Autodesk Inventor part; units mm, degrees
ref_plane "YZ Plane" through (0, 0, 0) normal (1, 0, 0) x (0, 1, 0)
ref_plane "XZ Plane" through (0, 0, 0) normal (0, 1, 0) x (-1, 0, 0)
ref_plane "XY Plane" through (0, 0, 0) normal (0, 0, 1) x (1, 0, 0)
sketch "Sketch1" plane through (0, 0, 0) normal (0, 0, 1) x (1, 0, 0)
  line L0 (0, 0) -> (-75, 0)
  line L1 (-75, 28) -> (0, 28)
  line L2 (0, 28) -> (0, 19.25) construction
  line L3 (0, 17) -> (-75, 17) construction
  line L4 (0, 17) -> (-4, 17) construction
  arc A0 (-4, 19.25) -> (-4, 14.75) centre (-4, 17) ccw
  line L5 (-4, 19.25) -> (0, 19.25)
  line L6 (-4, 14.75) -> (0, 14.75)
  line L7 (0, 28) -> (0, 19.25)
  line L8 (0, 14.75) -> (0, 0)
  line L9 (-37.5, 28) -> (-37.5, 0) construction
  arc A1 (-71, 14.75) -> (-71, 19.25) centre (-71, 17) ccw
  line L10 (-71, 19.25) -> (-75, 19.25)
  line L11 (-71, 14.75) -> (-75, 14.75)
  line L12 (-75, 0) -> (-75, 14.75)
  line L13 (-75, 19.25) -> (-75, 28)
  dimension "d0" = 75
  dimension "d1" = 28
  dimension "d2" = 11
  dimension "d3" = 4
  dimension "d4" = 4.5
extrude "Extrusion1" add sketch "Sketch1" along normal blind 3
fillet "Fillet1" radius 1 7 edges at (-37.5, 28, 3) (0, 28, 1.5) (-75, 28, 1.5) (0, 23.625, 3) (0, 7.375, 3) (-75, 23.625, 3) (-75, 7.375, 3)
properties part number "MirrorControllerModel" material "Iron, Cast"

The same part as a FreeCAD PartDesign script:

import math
import FreeCAD as App
import Part
import Sketcher

V = App.Vector
Q = App.Units.Quantity


def edges_at(feature, points):
    """Names of the edges that pass closest to the given points."""
    edges = feature.Shape.Edges
    near = lambda p: min(range(len(edges)), key=lambda i: edges[i].distToShape(Part.Vertex(*p))[0])
    return sorted({f"Edge{near(p) + 1}" for p in points})

doc = App.newDocument("Part")
params = doc.addObject("Spreadsheet::Sheet", "Params")
for row, (alias, value) in enumerate([
    ("sketch1_width", "75 mm"),
    ("sketch1_width2", "4 mm"),
    ("sketch1_radius", "2.25 mm"),
    ("pad1_length", "3 mm"),
    ("fillet_radius", "1 mm"),
], start=1):
    params.set(f"A{row}", alias)
    params.set(f"B{row}", "=" + value)
    params.setAlias(f"B{row}", alias)

body = doc.addObject("PartDesign::Body", "Body")

sketch1 = body.newObject("Sketcher::SketchObject", "Sketch")
sketch1.AttachmentSupport = (doc.getObject("XY_Plane"), [""])
sketch1.MapMode = "FlatFace"
sketch1.addGeometry([
    Part.LineSegment(V(-75, 0, 0), V(0, 0, 0)),
    Part.LineSegment(V(0, 0, 0), V(0, 14.8, 0)),
    Part.LineSegment(V(0, 14.8, 0), V(-4, 14.8, 0)),
    Part.ArcOfCircle(Part.Circle(V(-4, 17, 0), V(0, 0, 1), 2.2), math.radians(90), math.radians(270)),
    Part.LineSegment(V(-4, 19.2, 0), V(0, 19.2, 0)),
    Part.LineSegment(V(0, 19.2, 0), V(0, 28, 0)),
    Part.LineSegment(V(0, 28, 0), V(-75, 28, 0)),
    Part.LineSegment(V(-75, 28, 0), V(-75, 19.2, 0)),
    Part.LineSegment(V(-75, 19.2, 0), V(-71, 19.2, 0)),
    Part.ArcOfCircle(Part.Circle(V(-71, 17, 0), V(0, 0, 1), 2.2), math.radians(-90), math.radians(90)),
    Part.LineSegment(V(-71, 14.8, 0), V(-75, 14.8, 0)),
    Part.LineSegment(V(-75, 14.8, 0), V(-75, 0, 0)),
], False)
sketch1.addConstraint([
    Sketcher.Constraint("Coincident", 0, 2, 1, 1),
    Sketcher.Constraint("Coincident", 1, 2, 2, 1),
    Sketcher.Constraint("Tangent", 2, 2, 3, 2),
    Sketcher.Constraint("Tangent", 3, 1, 4, 1),
    Sketcher.Constraint("Coincident", 4, 2, 5, 1),
    Sketcher.Constraint("Coincident", 5, 2, 6, 1),
    Sketcher.Constraint("Coincident", 6, 2, 7, 1),
    Sketcher.Constraint("Coincident", 7, 2, 8, 1),
    Sketcher.Constraint("Tangent", 8, 2, 9, 2),
    Sketcher.Constraint("Tangent", 9, 1, 10, 1),
    Sketcher.Constraint("Coincident", 10, 2, 11, 1),
    Sketcher.Constraint("Coincident", 11, 2, 0, 1),
    Sketcher.Constraint("Horizontal", 0),
    Sketcher.Constraint("Vertical", 1),
    Sketcher.Constraint("Horizontal", 2),
    Sketcher.Constraint("Horizontal", 4),
    Sketcher.Constraint("Vertical", 5),
    Sketcher.Constraint("Horizontal", 6),
    Sketcher.Constraint("Vertical", 7),
    Sketcher.Constraint("Horizontal", 8),
    Sketcher.Constraint("Horizontal", 10),
    Sketcher.Constraint("Vertical", 11),
    Sketcher.Constraint("Coincident", 0, 2, -1, 1),
    Sketcher.Constraint("Equal", 3, 9),
    Sketcher.Constraint("PointOnObject", 4, 2, -2),
    Sketcher.Constraint("Horizontal", 3, 3, 9, 3),
    Sketcher.Constraint("Vertical", 7, 2, 10, 2),
    Sketcher.Constraint("Equal", 4, 8),
    Sketcher.Constraint("DistanceX", 0, 1, 0, 2, Q("75 mm")),
    Sketcher.Constraint("DistanceX", 2, 2, 2, 1, Q("4 mm")),
    Sketcher.Constraint("Radius", 3, Q("2.25 mm")),
    Sketcher.Constraint("DistanceY", -1, 1, 5, 2, Q("28 mm")),
    Sketcher.Constraint("DistanceY", 3, 3, 5, 2, Q("11 mm")),
])
sketch1.setExpression("Constraints[28]", "Params.sketch1_width")
sketch1.setExpression("Constraints[29]", "Params.sketch1_width2")
sketch1.setExpression("Constraints[30]", "Params.sketch1_radius")
pad1 = body.newObject("PartDesign::Pad", "Pad")
pad1.Profile = sketch1
pad1.setExpression("Length", "Params.pad1_length")
doc.recompute()

fillet = body.newObject("PartDesign::Fillet", "Fillet")
fillet.Base = (pad1, edges_at(pad1, [
    (-37.5, 28, 3),
    (0, 28, 1.5),
    (-75, 28, 1.5),
    (0, 23.625, 3),
    (0, 7.375, 3),
    (-75, 23.625, 3),
    (-75, 7.375, 3),
]))
fillet.setExpression("Radius", "Params.fillet_radius")

doc.recompute()
